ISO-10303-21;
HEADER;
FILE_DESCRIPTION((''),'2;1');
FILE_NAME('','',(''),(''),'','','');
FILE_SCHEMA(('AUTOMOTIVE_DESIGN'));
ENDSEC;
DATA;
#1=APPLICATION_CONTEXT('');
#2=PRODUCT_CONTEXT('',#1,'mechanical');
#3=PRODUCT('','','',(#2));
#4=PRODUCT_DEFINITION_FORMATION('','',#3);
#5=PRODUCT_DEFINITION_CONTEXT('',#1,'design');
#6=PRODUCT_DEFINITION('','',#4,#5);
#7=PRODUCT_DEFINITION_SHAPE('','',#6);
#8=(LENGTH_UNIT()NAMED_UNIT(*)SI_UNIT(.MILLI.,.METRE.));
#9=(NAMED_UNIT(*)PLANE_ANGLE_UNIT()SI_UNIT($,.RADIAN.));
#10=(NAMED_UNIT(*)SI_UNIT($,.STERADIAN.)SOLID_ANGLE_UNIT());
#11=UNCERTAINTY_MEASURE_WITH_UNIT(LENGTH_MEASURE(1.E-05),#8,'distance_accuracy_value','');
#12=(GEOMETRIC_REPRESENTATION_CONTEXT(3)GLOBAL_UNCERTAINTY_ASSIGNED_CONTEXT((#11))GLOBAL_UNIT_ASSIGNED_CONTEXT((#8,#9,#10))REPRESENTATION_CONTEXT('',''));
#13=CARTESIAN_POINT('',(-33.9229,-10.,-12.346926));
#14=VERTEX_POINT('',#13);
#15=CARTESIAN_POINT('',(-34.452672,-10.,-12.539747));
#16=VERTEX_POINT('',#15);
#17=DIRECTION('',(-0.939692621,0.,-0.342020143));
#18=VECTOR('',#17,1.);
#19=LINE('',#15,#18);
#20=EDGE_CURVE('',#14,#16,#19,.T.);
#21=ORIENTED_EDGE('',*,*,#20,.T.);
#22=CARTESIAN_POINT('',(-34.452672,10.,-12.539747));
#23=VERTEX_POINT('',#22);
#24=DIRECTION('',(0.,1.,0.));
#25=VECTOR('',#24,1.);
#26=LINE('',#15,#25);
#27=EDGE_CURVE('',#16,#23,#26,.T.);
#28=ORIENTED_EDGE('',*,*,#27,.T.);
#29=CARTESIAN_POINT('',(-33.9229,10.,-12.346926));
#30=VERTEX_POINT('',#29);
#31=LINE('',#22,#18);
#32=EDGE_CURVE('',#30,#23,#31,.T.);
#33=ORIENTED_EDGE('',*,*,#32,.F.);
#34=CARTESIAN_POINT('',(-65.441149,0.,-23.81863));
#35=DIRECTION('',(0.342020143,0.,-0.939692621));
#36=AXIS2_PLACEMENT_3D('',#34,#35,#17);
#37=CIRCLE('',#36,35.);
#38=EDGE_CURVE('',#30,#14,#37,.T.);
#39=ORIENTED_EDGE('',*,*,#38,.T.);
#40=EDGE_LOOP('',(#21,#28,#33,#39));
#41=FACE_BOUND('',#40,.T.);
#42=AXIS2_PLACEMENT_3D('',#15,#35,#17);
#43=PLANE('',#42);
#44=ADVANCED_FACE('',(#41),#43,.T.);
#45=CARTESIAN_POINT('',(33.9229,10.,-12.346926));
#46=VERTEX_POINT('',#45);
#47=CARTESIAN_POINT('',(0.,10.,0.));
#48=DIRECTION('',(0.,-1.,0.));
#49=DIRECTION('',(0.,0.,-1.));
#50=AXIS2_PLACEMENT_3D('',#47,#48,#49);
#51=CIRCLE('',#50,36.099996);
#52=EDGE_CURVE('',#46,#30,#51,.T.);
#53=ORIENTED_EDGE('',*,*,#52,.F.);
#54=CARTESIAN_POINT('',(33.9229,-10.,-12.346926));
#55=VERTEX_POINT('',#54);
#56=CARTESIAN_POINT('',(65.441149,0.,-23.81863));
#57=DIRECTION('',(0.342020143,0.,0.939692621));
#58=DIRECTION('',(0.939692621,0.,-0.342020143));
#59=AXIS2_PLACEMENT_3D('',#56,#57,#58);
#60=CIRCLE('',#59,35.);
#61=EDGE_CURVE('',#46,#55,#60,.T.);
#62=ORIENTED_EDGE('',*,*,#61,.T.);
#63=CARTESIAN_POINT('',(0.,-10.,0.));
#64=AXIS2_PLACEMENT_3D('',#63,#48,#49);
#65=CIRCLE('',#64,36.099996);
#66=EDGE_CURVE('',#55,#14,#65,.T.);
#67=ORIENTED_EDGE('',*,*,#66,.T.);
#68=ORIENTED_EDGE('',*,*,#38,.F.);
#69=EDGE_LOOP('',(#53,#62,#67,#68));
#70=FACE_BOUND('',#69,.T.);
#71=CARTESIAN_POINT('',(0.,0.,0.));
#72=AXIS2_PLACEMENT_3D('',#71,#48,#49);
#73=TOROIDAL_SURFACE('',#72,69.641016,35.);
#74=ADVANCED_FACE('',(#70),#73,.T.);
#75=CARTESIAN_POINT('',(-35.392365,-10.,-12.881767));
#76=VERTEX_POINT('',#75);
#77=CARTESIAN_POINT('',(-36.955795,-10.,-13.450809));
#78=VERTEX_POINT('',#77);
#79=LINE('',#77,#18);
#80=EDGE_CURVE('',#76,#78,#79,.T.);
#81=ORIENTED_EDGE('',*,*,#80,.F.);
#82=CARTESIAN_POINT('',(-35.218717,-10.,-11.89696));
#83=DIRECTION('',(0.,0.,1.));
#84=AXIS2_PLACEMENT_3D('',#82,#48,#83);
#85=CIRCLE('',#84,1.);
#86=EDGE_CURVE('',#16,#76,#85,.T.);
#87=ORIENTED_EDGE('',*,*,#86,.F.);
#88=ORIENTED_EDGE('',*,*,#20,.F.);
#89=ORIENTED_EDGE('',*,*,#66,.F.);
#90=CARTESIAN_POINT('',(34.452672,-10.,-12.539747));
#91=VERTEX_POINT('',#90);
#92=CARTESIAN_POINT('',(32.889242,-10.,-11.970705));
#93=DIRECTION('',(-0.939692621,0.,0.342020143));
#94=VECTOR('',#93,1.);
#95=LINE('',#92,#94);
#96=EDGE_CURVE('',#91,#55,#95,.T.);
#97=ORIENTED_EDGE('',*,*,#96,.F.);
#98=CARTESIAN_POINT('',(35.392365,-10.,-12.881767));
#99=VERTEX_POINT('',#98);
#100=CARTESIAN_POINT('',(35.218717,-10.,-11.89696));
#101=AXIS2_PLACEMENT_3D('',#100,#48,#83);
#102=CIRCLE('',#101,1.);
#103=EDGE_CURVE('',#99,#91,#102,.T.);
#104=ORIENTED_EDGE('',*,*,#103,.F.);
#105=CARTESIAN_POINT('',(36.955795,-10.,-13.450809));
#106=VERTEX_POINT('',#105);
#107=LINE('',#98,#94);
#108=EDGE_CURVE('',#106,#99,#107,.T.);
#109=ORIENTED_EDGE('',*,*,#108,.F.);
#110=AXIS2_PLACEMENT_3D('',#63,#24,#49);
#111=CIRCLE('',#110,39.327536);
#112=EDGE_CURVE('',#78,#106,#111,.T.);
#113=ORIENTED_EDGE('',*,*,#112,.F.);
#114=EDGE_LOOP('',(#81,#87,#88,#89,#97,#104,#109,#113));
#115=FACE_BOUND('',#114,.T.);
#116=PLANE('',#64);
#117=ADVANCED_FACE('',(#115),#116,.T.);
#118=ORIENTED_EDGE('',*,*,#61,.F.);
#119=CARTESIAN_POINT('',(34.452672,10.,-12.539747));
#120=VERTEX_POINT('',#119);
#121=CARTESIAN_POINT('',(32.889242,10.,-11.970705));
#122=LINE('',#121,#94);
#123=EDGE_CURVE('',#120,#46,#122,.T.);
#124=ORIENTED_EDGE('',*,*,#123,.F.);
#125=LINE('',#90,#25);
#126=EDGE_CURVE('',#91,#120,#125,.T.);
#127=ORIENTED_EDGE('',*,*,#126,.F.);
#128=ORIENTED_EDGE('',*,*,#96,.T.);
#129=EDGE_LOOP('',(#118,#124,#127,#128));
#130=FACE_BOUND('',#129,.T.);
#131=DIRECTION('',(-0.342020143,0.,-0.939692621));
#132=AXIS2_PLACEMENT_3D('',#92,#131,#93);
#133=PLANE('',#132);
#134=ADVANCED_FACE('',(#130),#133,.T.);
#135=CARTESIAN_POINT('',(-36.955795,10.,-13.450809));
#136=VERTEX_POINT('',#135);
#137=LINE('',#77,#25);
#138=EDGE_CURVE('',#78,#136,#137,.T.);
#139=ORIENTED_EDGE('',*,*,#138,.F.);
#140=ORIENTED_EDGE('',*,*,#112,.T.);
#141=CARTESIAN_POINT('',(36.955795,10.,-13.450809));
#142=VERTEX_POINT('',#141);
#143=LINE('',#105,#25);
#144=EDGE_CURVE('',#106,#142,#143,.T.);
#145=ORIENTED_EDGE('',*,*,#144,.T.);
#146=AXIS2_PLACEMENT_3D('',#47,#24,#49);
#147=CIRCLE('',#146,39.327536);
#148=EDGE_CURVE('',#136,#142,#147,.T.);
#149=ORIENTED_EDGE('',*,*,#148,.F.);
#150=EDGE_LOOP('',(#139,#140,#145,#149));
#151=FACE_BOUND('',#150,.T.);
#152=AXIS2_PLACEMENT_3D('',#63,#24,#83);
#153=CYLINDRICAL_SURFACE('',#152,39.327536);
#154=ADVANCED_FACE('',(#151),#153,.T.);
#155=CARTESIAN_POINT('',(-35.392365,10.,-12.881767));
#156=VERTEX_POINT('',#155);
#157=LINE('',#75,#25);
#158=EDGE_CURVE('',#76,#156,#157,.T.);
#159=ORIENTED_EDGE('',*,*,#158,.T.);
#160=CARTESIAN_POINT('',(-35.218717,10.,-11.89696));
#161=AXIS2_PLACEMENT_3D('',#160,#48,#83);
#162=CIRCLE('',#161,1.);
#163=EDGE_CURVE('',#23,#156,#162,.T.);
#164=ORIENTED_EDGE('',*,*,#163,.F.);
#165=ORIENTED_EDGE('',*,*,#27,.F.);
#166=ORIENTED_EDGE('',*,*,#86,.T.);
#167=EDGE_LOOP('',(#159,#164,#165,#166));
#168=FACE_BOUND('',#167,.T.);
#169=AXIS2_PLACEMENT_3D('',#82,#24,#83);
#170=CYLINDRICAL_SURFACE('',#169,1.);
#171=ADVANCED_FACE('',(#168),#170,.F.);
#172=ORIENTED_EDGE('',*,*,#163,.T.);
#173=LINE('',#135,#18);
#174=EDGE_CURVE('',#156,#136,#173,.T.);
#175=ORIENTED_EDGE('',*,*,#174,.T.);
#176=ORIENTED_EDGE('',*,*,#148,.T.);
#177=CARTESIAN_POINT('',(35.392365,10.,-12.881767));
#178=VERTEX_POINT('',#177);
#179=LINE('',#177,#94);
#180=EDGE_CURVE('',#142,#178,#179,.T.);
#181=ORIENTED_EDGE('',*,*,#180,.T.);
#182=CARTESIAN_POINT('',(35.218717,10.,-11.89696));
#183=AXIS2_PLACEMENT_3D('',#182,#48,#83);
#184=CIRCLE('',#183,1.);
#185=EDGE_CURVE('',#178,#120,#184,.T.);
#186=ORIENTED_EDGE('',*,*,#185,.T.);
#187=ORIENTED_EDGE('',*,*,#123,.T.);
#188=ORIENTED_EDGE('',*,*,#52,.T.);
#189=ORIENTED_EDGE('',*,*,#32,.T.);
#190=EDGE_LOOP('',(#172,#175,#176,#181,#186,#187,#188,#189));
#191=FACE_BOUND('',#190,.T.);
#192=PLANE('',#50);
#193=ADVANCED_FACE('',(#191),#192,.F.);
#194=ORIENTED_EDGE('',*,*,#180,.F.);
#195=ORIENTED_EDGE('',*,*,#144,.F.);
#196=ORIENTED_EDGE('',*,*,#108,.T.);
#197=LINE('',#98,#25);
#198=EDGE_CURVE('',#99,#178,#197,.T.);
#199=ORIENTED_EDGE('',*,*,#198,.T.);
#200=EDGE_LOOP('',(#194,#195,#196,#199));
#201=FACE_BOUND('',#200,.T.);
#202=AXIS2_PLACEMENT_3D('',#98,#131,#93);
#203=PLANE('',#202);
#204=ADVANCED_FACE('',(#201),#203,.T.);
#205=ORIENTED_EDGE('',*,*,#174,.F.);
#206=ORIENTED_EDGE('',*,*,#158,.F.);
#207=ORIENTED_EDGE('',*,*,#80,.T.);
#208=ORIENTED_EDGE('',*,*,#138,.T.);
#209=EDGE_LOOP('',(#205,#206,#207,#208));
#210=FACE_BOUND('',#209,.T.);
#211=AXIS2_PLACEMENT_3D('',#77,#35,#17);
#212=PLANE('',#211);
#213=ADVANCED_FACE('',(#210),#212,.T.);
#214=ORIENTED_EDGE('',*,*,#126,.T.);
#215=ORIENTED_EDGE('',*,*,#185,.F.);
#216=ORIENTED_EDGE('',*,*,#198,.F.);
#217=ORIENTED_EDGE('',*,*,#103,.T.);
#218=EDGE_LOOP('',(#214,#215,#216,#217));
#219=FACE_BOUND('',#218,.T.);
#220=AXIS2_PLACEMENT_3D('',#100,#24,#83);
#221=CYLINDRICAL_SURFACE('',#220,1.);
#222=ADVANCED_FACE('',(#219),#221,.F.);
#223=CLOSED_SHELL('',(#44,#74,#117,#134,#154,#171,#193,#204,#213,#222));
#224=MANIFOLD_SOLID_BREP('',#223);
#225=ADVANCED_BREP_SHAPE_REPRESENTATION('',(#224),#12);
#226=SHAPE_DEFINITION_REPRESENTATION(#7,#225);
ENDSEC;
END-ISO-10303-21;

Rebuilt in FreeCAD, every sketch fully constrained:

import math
import FreeCAD as App
import Part
import Sketcher
from FreeCAD import Vector
Q = App.Units.Quantity

doc = App.newDocument("Part")
body = doc.addObject("PartDesign::Body", "Body")

sketch1 = body.newObject("Sketcher::SketchObject", "Sketch")
sketch1.AttachmentSupport = (doc.getObject("XZ_Plane"), [""])
sketch1.MapMode = "FlatFace"
sketch1.addGeometry([
    Part.LineSegment(Vector(-35.392365, -12.881767, 0), Vector(-36.955795, -13.450809, 0)),
    Part.ArcOfCircle(Part.Circle(Vector(0, 0, 0), Vector(0, 0, 1), 39.327536), math.radians(-20), math.radians(200)),
    Part.LineSegment(Vector(36.955795, -13.450809, 0), Vector(35.392365, -12.881767, 0)),
    Part.ArcOfCircle(Part.Circle(Vector(35.218717, -11.89696, 0), Vector(0, 0, 1), 1), math.radians(-80), math.radians(220)),
    Part.LineSegment(Vector(34.452672, -12.539747, 0), Vector(32.889242, -11.970705, 0)),
    Part.ArcOfCircle(Part.Circle(Vector(0, 0, 0), Vector(0, 0, 1), 35), math.radians(-20), math.radians(200)),
    Part.LineSegment(Vector(-32.889242, -11.970705, 0), Vector(-34.452672, -12.539747, 0)),
    Part.ArcOfCircle(Part.Circle(Vector(-35.218717, -11.89696, 0), Vector(0, 0, 1), 1), math.radians(-40), math.radians(260)),
], False)
sketch1.addConstraint([
    Sketcher.Constraint("Coincident", 0, 2, 1, 2),
    Sketcher.Constraint("Coincident", 1, 1, 2, 1),
    Sketcher.Constraint("Coincident", 2, 2, 3, 1),
    Sketcher.Constraint("Coincident", 3, 2, 4, 1),
    Sketcher.Constraint("Coincident", 4, 2, 5, 1),
    Sketcher.Constraint("Coincident", 5, 2, 6, 1),
    Sketcher.Constraint("Coincident", 6, 2, 7, 1),
    Sketcher.Constraint("Coincident", 7, 2, 0, 1),
    Sketcher.Constraint("Coincident", 1, 3, -1, 1),
    Sketcher.Constraint("Coincident", 5, 3, -1, 1),
    Sketcher.Constraint("Equal", 3, 7),
    Sketcher.Constraint("Symmetric", 3, 3, 7, 3, -2),
    Sketcher.Constraint("Parallel", 2, 4),
    Sketcher.Constraint("Parallel", 0, 6),
    Sketcher.Constraint("Horizontal", 0, 2, 1, 1),
    Sketcher.Constraint("Horizontal", 4, 2, 5, 2),
    Sketcher.Constraint("Horizontal", 3, 2, 6, 2),
    Sketcher.Constraint("Equal", 2, 4),
    Sketcher.Constraint("Radius", 3, 1.0),
    Sketcher.Constraint("Radius", 5, 35.0),
    Sketcher.Constraint("Angle", 0, Q("-160 deg")),
    Sketcher.Constraint("Radius", 1, 39.327536),
    Sketcher.Constraint("DistanceY", 3, 3, -1, 1, 11.89696),
    Sketcher.Constraint("DistanceY", 0, 2, -1, 1, 13.450809),
    Sketcher.Constraint("DistanceX", -1, 1, 4, 2, 32.889242),
])
pad1 = body.newObject("PartDesign::Pad", "Pad")
pad1.Profile = sketch1
pad1.Type = "TwoLengths"
pad1.Length = 10
pad1.Length2 = 10
pad1.Reversed = True

sketch2 = body.newObject("Sketcher::SketchObject", "Sketch001")
sketch2.AttachmentSupport = (doc.getObject("YZ_Plane"), [""])
sketch2.MapMode = "FlatFace"
sketch2.addGeometry([
    Part.LineSegment(Vector(10, 35, 0), Vector(10, 36.099996, 0)),
    Part.ArcOfCircle(Part.Circle(Vector(0, 69.641016, 0), Vector(0, 0, 1), 35), math.radians(-81.786789), math.radians(-73.39845)),
    Part.LineSegment(Vector(5, 35, 0), Vector(10, 35, 0)),
    Part.LineSegment(Vector(-10, 36.099996, 0), Vector(-10, 35, 0)),
    Part.LineSegment(Vector(-10, 35, 0), Vector(-5, 35, 0)),
    Part.ArcOfCircle(Part.Circle(Vector(0, 69.641016, 0), Vector(0, 0, 1), 35), math.radians(-106.60155), math.radians(-98.213211)),
], False)
sketch2.addConstraint([
    Sketcher.Constraint("Coincident", 0, 2, 1, 2),
    Sketcher.Constraint("Coincident", 1, 1, 2, 1),
    Sketcher.Constraint("Coincident", 2, 2, 0, 1),
    Sketcher.Constraint("Coincident", 3, 2, 4, 1),
    Sketcher.Constraint("Coincident", 4, 2, 5, 2),
    Sketcher.Constraint("Coincident", 5, 1, 3, 1),
    Sketcher.Constraint("Vertical", 0),
    Sketcher.Constraint("Horizontal", 2),
    Sketcher.Constraint("Vertical", 3),
    Sketcher.Constraint("Horizontal", 4),
    Sketcher.Constraint("Coincident", 5, 3, 1, 3),
    Sketcher.Constraint("Equal", 1, 5),
    Sketcher.Constraint("Symmetric", 2, 2, 3, 2, -2),
    Sketcher.Constraint("PointOnObject", 1, 3, -2),
    Sketcher.Constraint("Radius", 1, 35.0),
    Sketcher.Constraint("DistanceX", 2, 1, 2, 2, 5.0),
    Sketcher.Constraint("DistanceX", -1, 1, 0, 2, 10.0),
    Sketcher.Constraint("DistanceY", -1, 1, 1, 1, 35.0),
])
groove = body.newObject("PartDesign::Groove", "Groove")
groove.Profile = sketch2
groove.ReferenceAxis = (sketch2, ["H_Axis"])
groove.Angle = 110

sketch3 = body.newObject("Sketcher::SketchObject", "Sketch002")
sketch3.AttachmentSupport = (doc.getObject("YZ_Plane"), [""])
sketch3.MapMode = "FlatFace"
sketch3.addGeometry([
    Part.LineSegment(Vector(10, 35, 0), Vector(10, 36.099996, 0)),
    Part.ArcOfCircle(Part.Circle(Vector(0, 69.641016, 0), Vector(0, 0, 1), 35), math.radians(-81.786789), math.radians(-73.39845)),
    Part.LineSegment(Vector(5, 35, 0), Vector(10, 35, 0)),
    Part.LineSegment(Vector(-10, 36.099996, 0), Vector(-10, 35, 0)),
    Part.LineSegment(Vector(-10, 35, 0), Vector(-5, 35, 0)),
    Part.ArcOfCircle(Part.Circle(Vector(0, 69.641016, 0), Vector(0, 0, 1), 35), math.radians(-106.60155), math.radians(-98.213211)),
], False)
sketch3.addConstraint([
    Sketcher.Constraint("Coincident", 0, 2, 1, 2),
    Sketcher.Constraint("Coincident", 1, 1, 2, 1),
    Sketcher.Constraint("Coincident", 2, 2, 0, 1),
    Sketcher.Constraint("Coincident", 3, 2, 4, 1),
    Sketcher.Constraint("Coincident", 4, 2, 5, 2),
    Sketcher.Constraint("Coincident", 5, 1, 3, 1),
    Sketcher.Constraint("Vertical", 0),
    Sketcher.Constraint("Horizontal", 2),
    Sketcher.Constraint("Vertical", 3),
    Sketcher.Constraint("Horizontal", 4),
    Sketcher.Constraint("Coincident", 5, 3, 1, 3),
    Sketcher.Constraint("Equal", 1, 5),
    Sketcher.Constraint("Symmetric", 2, 2, 3, 2, -2),
    Sketcher.Constraint("PointOnObject", 1, 3, -2),
    Sketcher.Constraint("Radius", 1, 35.0),
    Sketcher.Constraint("DistanceX", 2, 1, 2, 2, 5.0),
    Sketcher.Constraint("DistanceX", -1, 1, 0, 2, 10.0),
    Sketcher.Constraint("DistanceY", -1, 1, 1, 1, 35.0),
])
groove2 = body.newObject("PartDesign::Groove", "Groove001")
groove2.Profile = sketch3
groove2.ReferenceAxis = (sketch3, ["H_Axis"])
groove2.Angle = 110
groove2.Reversed = True

sketch4 = body.newObject("Sketcher::SketchObject", "Sketch003")
sketch4.AttachmentSupport = (doc.getObject("YZ_Plane"), [""])
sketch4.MapMode = "FlatFace"
sketch4.addGeometry([
    Part.LineSegment(Vector(5, 35, 0), Vector(-5, 35, 0)),
    Part.ArcOfCircle(Part.Circle(Vector(0, 69.641016, 0), Vector(0, 0, 1), 35), math.radians(-98.213211), math.radians(-81.786789)),
], False)
sketch4.addConstraint([
    Sketcher.Constraint("Coincident", 0, 1, 1, 2),
    Sketcher.Constraint("Coincident", 1, 1, 0, 2),
    Sketcher.Constraint("Horizontal", 0),
    Sketcher.Constraint("PointOnObject", 1, 3, -2),
    Sketcher.Constraint("Radius", 1, 35.0),
    Sketcher.Constraint("DistanceX", 0, 2, 0, 1, 10.0),
    Sketcher.Constraint("DistanceY", -1, 1, 0, 1, 35.0),
])
revolution = body.newObject("PartDesign::Revolution", "Revolution")
revolution.Profile = sketch4
revolution.ReferenceAxis = (sketch4, ["H_Axis"])
revolution.Angle = 110

sketch5 = body.newObject("Sketcher::SketchObject", "Sketch004")
sketch5.AttachmentSupport = (doc.getObject("YZ_Plane"), [""])
sketch5.MapMode = "FlatFace"
sketch5.addGeometry([
    Part.LineSegment(Vector(5, 35, 0), Vector(-5, 35, 0)),
    Part.ArcOfCircle(Part.Circle(Vector(0, 69.641016, 0), Vector(0, 0, 1), 35), math.radians(-98.213211), math.radians(-81.786789)),
], False)
sketch5.addConstraint([
    Sketcher.Constraint("Coincident", 0, 1, 1, 2),
    Sketcher.Constraint("Coincident", 1, 1, 0, 2),
    Sketcher.Constraint("Horizontal", 0),
    Sketcher.Constraint("PointOnObject", 1, 3, -2),
    Sketcher.Constraint("Radius", 1, 35.0),
    Sketcher.Constraint("DistanceX", 0, 2, 0, 1, 10.0),
    Sketcher.Constraint("DistanceY", -1, 1, 0, 1, 35.0),
])
revolution2 = body.newObject("PartDesign::Revolution", "Revolution001")
revolution2.Profile = sketch5
revolution2.ReferenceAxis = (sketch5, ["H_Axis"])
revolution2.Angle = 110
revolution2.Reversed = True

doc.recompute()
